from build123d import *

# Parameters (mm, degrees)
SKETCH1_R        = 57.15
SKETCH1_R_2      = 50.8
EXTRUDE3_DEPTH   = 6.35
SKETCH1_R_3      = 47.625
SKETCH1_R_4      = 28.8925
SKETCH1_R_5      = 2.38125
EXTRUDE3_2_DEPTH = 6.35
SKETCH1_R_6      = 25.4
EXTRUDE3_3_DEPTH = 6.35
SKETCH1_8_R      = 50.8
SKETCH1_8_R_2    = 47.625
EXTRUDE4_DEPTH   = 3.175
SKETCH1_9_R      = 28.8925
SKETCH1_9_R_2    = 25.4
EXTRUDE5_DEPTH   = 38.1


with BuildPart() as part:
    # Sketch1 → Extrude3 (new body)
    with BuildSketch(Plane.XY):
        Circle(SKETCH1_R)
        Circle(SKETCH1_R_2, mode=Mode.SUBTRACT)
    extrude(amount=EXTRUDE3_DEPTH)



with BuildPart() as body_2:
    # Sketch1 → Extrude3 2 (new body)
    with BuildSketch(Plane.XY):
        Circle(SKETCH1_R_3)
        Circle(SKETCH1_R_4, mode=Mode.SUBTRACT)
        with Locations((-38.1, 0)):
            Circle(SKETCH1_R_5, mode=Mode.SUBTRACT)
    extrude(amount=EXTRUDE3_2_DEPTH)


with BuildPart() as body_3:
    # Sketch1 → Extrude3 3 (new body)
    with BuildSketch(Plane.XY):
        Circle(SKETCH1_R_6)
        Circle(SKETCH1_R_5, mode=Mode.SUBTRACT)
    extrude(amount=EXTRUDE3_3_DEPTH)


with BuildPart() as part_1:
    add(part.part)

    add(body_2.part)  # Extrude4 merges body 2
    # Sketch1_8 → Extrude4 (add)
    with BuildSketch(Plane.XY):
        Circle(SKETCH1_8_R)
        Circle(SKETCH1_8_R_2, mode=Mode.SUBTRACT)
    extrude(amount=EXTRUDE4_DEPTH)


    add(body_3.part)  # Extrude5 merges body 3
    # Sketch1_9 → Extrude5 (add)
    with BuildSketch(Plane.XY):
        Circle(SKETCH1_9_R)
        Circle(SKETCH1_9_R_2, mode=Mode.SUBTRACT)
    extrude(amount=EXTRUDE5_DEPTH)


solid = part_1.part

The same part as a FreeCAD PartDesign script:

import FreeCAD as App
import Part
import Sketcher
Q = App.Units.Quantity

doc = App.newDocument("Part")
body = doc.addObject("PartDesign::Body", "Body")

# Sketch on XY plane
sketch1 = body.newObject("Sketcher::SketchObject", "Sketch")
sketch1.AttachmentSupport = (doc.getObject("XY_Plane"), [""])
sketch1.MapMode = "FlatFace"
sketch1.addGeometry(Part.Circle(App.Vector(0, 0, 0), App.Vector(0, 0, 1), 57.15), False)
sketch1.addGeometry(Part.Circle(App.Vector(0, 0, 0), App.Vector(0, 0, 1), 50.8), False)
sketch1.addConstraint(Sketcher.Constraint("Coincident", 0, 3, -1, 1))
sketch1.addConstraint(Sketcher.Constraint("Coincident", 1, 3, -1, 1))
sketch1.addConstraint(Sketcher.Constraint("Diameter", 1, Q("4 in")))
sketch1.addConstraint(Sketcher.Constraint("Diameter", 0, Q("4.5 in")))
pad1 = body.newObject("PartDesign::Pad", "Pad")
pad1.Profile = sketch1
pad1.Length = Q("0.25 in")
body2 = doc.addObject("PartDesign::Body", "Body001")

# Sketch on XY plane
sketch2 = body2.newObject("Sketcher::SketchObject", "Sketch001")
sketch2.AttachmentSupport = (doc.getObject("XY_Plane001"), [""])
sketch2.MapMode = "FlatFace"
sketch2.addGeometry(Part.Circle(App.Vector(0, 0, 0), App.Vector(0, 0, 1), 47.625), False)
sketch2.addGeometry(Part.Circle(App.Vector(-38.1, 0, 0), App.Vector(0, 0, 1), 2.38125), False)
sketch2.addGeometry(Part.Circle(App.Vector(0, 0, 0), App.Vector(0, 0, 1), 28.8925), False)
sketch2.addConstraint(Sketcher.Constraint("Coincident", 0, 3, -1, 1))
sketch2.addConstraint(Sketcher.Constraint("Coincident", 2, 3, -1, 1))
sketch2.addConstraint(Sketcher.Constraint("PointOnObject", 1, 3, -1))
sketch2.addConstraint(Sketcher.Constraint("Diameter", 0, Q("3.75 in")))
sketch2.addConstraint(Sketcher.Constraint("Diameter", 1, Q("0.1875 in")))
sketch2.addConstraint(Sketcher.Constraint("Diameter", 2, Q("2.275 in")))
sketch2.addConstraint(Sketcher.Constraint("DistanceX", 1, 3, -1, 1, Q("1.5 in")))
pad2 = body2.newObject("PartDesign::Pad", "Pad001")
pad2.Profile = sketch2
pad2.Length = Q("0.25 in")
body3 = doc.addObject("PartDesign::Body", "Body002")

# Sketch on XY plane
sketch3 = body3.newObject("Sketcher::SketchObject", "Sketch002")
sketch3.AttachmentSupport = (doc.getObject("XY_Plane002"), [""])
sketch3.MapMode = "FlatFace"
sketch3.addGeometry(Part.Circle(App.Vector(0, 0, 0), App.Vector(0, 0, 1), 25.4), False)
sketch3.addGeometry(Part.Circle(App.Vector(0, 0, 0), App.Vector(0, 0, 1), 2.38125), False)
sketch3.addConstraint(Sketcher.Constraint("Coincident", 0, 3, -1, 1))
sketch3.addConstraint(Sketcher.Constraint("Coincident", 1, 3, -1, 1))
sketch3.addConstraint(Sketcher.Constraint("Diameter", 0, Q("2 in")))
sketch3.addConstraint(Sketcher.Constraint("Diameter", 1, Q("0.1875 in")))
pad3 = body3.newObject("PartDesign::Pad", "Pad002")
pad3.Profile = sketch3
pad3.Length = Q("0.25 in")
body.AllowCompound = True
doc.recompute()

boolean = body.newObject("PartDesign::Boolean", "Boolean")
boolean.Type = "Fuse"
boolean.addObjects([body2])

# Sketch on XY plane
sketch4 = body.newObject("Sketcher::SketchObject", "Sketch003")
sketch4.AttachmentSupport = (doc.getObject("XY_Plane"), [""])
sketch4.MapMode = "FlatFace"
sketch4.addGeometry(Part.Circle(App.Vector(0, 0, 0), App.Vector(0, 0, 1), 50.8), False)
sketch4.addGeometry(Part.Circle(App.Vector(0, 0, 0), App.Vector(0, 0, 1), 47.625), False)
sketch4.addConstraint(Sketcher.Constraint("Coincident", 0, 3, -1, 1))
sketch4.addConstraint(Sketcher.Constraint("Coincident", 1, 3, -1, 1))
sketch4.addConstraint(Sketcher.Constraint("Diameter", 0, Q("4 in")))
sketch4.addConstraint(Sketcher.Constraint("Diameter", 1, Q("3.75 in")))
pad4 = body.newObject("PartDesign::Pad", "Pad003")
pad4.Profile = sketch4
pad4.Length = Q("0.125 in")
doc.recompute()

boolean2 = body.newObject("PartDesign::Boolean", "Boolean001")
boolean2.Type = "Fuse"
boolean2.addObjects([body3])

# Sketch on XY plane
sketch5 = body.newObject("Sketcher::SketchObject", "Sketch004")
sketch5.AttachmentSupport = (doc.getObject("XY_Plane"), [""])
sketch5.MapMode = "FlatFace"
sketch5.addGeometry(Part.Circle(App.Vector(0, 0, 0), App.Vector(0, 0, 1), 28.8925), False)
sketch5.addGeometry(Part.Circle(App.Vector(0, 0, 0), App.Vector(0, 0, 1), 25.4), False)
sketch5.addConstraint(Sketcher.Constraint("Coincident", 0, 3, -1, 1))
sketch5.addConstraint(Sketcher.Constraint("Coincident", 1, 3, -1, 1))
sketch5.addConstraint(Sketcher.Constraint("Diameter", 1, Q("2 in")))
sketch5.addConstraint(Sketcher.Constraint("Diameter", 0, Q("2.275 in")))
pad5 = body.newObject("PartDesign::Pad", "Pad004")
pad5.Profile = sketch5
pad5.Length = Q("1.5 in")

doc.recompute()
